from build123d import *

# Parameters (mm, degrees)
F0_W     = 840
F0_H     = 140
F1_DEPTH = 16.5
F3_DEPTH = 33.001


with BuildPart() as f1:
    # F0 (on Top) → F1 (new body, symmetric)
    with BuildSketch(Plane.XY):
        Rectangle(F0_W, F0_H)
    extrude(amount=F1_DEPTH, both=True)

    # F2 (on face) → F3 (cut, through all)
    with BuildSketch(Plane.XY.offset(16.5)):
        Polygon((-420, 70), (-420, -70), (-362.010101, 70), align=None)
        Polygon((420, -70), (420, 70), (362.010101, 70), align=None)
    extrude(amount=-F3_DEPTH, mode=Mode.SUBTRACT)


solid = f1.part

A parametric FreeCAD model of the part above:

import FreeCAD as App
import Part
import Sketcher
from FreeCAD import Vector
Q = App.Units.Quantity


def add_polygon(sketch, points):
    """Adds a closed chain of lines whose ends are joined by coincident constraints."""
    first, n = sketch.GeometryCount, len(points)
    for a, b in zip(points, points[1:] + points[:1]):
        sketch.addGeometry(Part.LineSegment(App.Vector(*a, 0), App.Vector(*b, 0)), False)
    for i in range(n):
        sketch.addConstraint(Sketcher.Constraint("Coincident", first + i, 2, first + (i + 1) % n, 1))

doc = App.newDocument("Part")
params = doc.addObject("Spreadsheet::Sheet", "Params")
for row, (alias, value) in enumerate([
    ("sketch1_width", "840 mm"),
    ("sketch1_height", "140 mm"),
    ("pad1_length", "33 mm"),
    ("sketch2_height", "140 mm"),
], start=1):
    params.set(f"A{row}", alias)
    params.set(f"B{row}", "=" + value)
    params.setAlias(f"B{row}", alias)

body = doc.addObject("PartDesign::Body", "Body")

# Sketch on XY plane
sketch1 = body.newObject("Sketcher::SketchObject", "Sketch")
sketch1.AttachmentSupport = (doc.getObject("XY_Plane"), [""])
sketch1.MapMode = "FlatFace"
add_polygon(sketch1, [(-420, 70), (-420, -70), (420, -70), (420, 70)])  # lines 0-3
sketch1.addConstraint(Sketcher.Constraint("Vertical", 0))
sketch1.addConstraint(Sketcher.Constraint("Horizontal", 1))
sketch1.addConstraint(Sketcher.Constraint("Vertical", 2))
sketch1.addConstraint(Sketcher.Constraint("Horizontal", 3))
sketch1.addConstraint(Sketcher.Constraint("Symmetric", 0, 2, 2, 2, -1, 1))
sketch1.addConstraint(Sketcher.Constraint("DistanceX", 1, 1, 1, 2, 840.0))
sketch1.addConstraint(Sketcher.Constraint("DistanceY", 0, 2, 0, 1, 140.0))
sketch1.setExpression("Constraints[9]", "Params.sketch1_width")
sketch1.setExpression("Constraints[10]", "Params.sketch1_height")
pad1 = body.newObject("PartDesign::Pad", "Pad")
pad1.Profile = sketch1
pad1.setExpression("Length", "Params.pad1_length")
pad1.Midplane = True

# Sketch on XY plane
sketch2 = body.newObject("Sketcher::SketchObject", "Sketch001")
sketch2.AttachmentSupport = (doc.getObject("XY_Plane"), [""])
sketch2.MapMode = "FlatFace"
sketch2.AttachmentOffset = App.Placement(Vector(0, 0, 16.5), App.Rotation())
add_polygon(sketch2, [(-420, 70), (-420, -70), (-362, 70)])  # lines 0-2
add_polygon(sketch2, [(420, -70), (420, 70), (362, 70)])  # lines 3-5
sketch2.addConstraint(Sketcher.Constraint("Vertical", 0))
sketch2.addConstraint(Sketcher.Constraint("Horizontal", 2))
sketch2.addConstraint(Sketcher.Constraint("Vertical", 3))
sketch2.addConstraint(Sketcher.Constraint("Horizontal", 4))
sketch2.addConstraint(Sketcher.Constraint("Symmetric", 0, 2, 3, 2, -1, 1))
sketch2.addConstraint(Sketcher.Constraint("Symmetric", 1, 2, 4, 2, -2))
sketch2.addConstraint(Sketcher.Constraint("Horizontal", 0, 2, 5, 2))
sketch2.addConstraint(Sketcher.Constraint("DistanceY", 0, 2, 0, 1, 140.0))
sketch2.addConstraint(Sketcher.Constraint("DistanceX", 0, 2, -1, 1, 420.0))
sketch2.addConstraint(Sketcher.Constraint("Angle", 1, Q("67.5 deg")))
sketch2.setExpression("Constraints[13]", "Params.sketch2_height")
pocket1 = body.newObject("PartDesign::Pocket", "Pocket")
pocket1.Profile = sketch2
pocket1.Type = "ThroughAll"

doc.recompute()
